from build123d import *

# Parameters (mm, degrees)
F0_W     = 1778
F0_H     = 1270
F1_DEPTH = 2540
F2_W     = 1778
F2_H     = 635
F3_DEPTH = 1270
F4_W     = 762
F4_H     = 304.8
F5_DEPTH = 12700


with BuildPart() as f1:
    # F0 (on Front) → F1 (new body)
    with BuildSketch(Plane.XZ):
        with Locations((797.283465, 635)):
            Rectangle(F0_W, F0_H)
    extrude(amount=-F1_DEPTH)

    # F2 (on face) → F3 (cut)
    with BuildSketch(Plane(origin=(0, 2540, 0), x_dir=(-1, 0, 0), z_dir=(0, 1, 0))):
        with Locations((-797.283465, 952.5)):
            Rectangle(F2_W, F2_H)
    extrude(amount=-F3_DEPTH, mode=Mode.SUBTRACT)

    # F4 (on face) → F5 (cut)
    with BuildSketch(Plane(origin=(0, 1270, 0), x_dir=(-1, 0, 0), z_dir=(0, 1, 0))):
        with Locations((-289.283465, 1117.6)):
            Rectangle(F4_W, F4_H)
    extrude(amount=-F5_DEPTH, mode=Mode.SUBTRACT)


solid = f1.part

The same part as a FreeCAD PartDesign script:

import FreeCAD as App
import Part
import Sketcher

V = App.Vector
Q = App.Units.Quantity

doc = App.newDocument("Part")
body = doc.addObject("PartDesign::Body", "Body")

sketch1 = body.newObject("Sketcher::SketchObject", "Sketch")
sketch1.AttachmentSupport = (doc.getObject("XZ_Plane"), [""])
sketch1.MapMode = "FlatFace"
sketch1.addGeometry(Part.LineSegment(V(-92, 1270, 0), V(-92, 0, 0)), False)
sketch1.addGeometry(Part.LineSegment(V(-92, 0, 0), V(1686, 0, 0)), False)
sketch1.addGeometry(Part.LineSegment(V(1686, 0, 0), V(1686, 1270, 0)), False)
sketch1.addGeometry(Part.LineSegment(V(1686, 1270, 0), V(-92, 1270, 0)), False)
sketch1.addConstraint(Sketcher.Constraint("Coincident", 0, 2, 1, 1))
sketch1.addConstraint(Sketcher.Constraint("Coincident", 1, 2, 2, 1))
sketch1.addConstraint(Sketcher.Constraint("Coincident", 2, 2, 3, 1))
sketch1.addConstraint(Sketcher.Constraint("Coincident", 3, 2, 0, 1))
sketch1.addConstraint(Sketcher.Constraint("Vertical", 0))
sketch1.addConstraint(Sketcher.Constraint("Horizontal", 1))
sketch1.addConstraint(Sketcher.Constraint("Vertical", 2))
sketch1.addConstraint(Sketcher.Constraint("Horizontal", 3))
sketch1.addConstraint(Sketcher.Constraint("PointOnObject", 0, 2, -1))
sketch1.addConstraint(Sketcher.Constraint("DistanceX", 1, 1, 1, 2, Q("70 in")))
sketch1.addConstraint(Sketcher.Constraint("DistanceY", 0, 2, 0, 1, Q("50 in")))
sketch1.addConstraint(Sketcher.Constraint("DistanceX", 0, 2, -1, 1, 91.716535))
pad1 = body.newObject("PartDesign::Pad", "Pad")
pad1.Profile = sketch1
pad1.Length = Q("100 in")
pad1.Reversed = True

sketch2 = body.newObject("Sketcher::SketchObject", "Sketch001")
sketch2.AttachmentSupport = (doc.getObject("XZ_Plane"), [""])
sketch2.MapMode = "FlatFace"
sketch2.AttachmentOffset = App.Placement(V(0, 0, -100 * 25.4), App.Rotation())
sketch2.addGeometry(Part.LineSegment(V(1686, 1270, 0), V(1686, 635, 0)), False)
sketch2.addGeometry(Part.LineSegment(V(1686, 635, 0), V(-92, 635, 0)), False)
sketch2.addGeometry(Part.LineSegment(V(-92, 635, 0), V(-92, 1270, 0)), False)
sketch2.addGeometry(Part.LineSegment(V(-92, 1270, 0), V(1686, 1270, 0)), False)
sketch2.addConstraint(Sketcher.Constraint("Coincident", 0, 2, 1, 1))
sketch2.addConstraint(Sketcher.Constraint("Coincident", 1, 2, 2, 1))
sketch2.addConstraint(Sketcher.Constraint("Coincident", 2, 2, 3, 1))
sketch2.addConstraint(Sketcher.Constraint("Coincident", 3, 2, 0, 1))
sketch2.addConstraint(Sketcher.Constraint("Vertical", 0))
sketch2.addConstraint(Sketcher.Constraint("Horizontal", 1))
sketch2.addConstraint(Sketcher.Constraint("Vertical", 2))
sketch2.addConstraint(Sketcher.Constraint("Horizontal", 3))
sketch2.addConstraint(Sketcher.Constraint("DistanceX", 1, 2, 1, 1, Q("70 in")))
sketch2.addConstraint(Sketcher.Constraint("DistanceY", 0, 2, 0, 1, Q("25 in")))
sketch2.addConstraint(Sketcher.Constraint("DistanceY", -1, 1, 0, 2, Q("25 in")))
sketch2.addConstraint(Sketcher.Constraint("DistanceX", -1, 1, 0, 2, 1686.283465))
pocket1 = body.newObject("PartDesign::Pocket", "Pocket")
pocket1.Profile = sketch2
pocket1.Length = Q("50 in")
pocket1.Reversed = True

sketch3 = body.newObject("Sketcher::SketchObject", "Sketch002")
sketch3.AttachmentSupport = (doc.getObject("XZ_Plane"), [""])
sketch3.MapMode = "FlatFace"
sketch3.AttachmentOffset = App.Placement(V(0, 0, -50 * 25.4), App.Rotation())
sketch3.addGeometry(Part.LineSegment(V(670, 1270, 0), V(670, 965, 0)), False)
sketch3.addGeometry(Part.LineSegment(V(670, 965, 0), V(-92, 965, 0)), False)
sketch3.addGeometry(Part.LineSegment(V(-92, 965, 0), V(-92, 1270, 0)), False)
sketch3.addGeometry(Part.LineSegment(V(-92, 1270, 0), V(670, 1270, 0)), False)
sketch3.addConstraint(Sketcher.Constraint("Coincident", 0, 2, 1, 1))
sketch3.addConstraint(Sketcher.Constraint("Coincident", 1, 2, 2, 1))
sketch3.addConstraint(Sketcher.Constraint("Coincident", 2, 2, 3, 1))
sketch3.addConstraint(Sketcher.Constraint("Coincident", 3, 2, 0, 1))
sketch3.addConstraint(Sketcher.Constraint("Vertical", 0))
sketch3.addConstraint(Sketcher.Constraint("Horizontal", 1))
sketch3.addConstraint(Sketcher.Constraint("Vertical", 2))
sketch3.addConstraint(Sketcher.Constraint("Horizontal", 3))
sketch3.addConstraint(Sketcher.Constraint("DistanceX", 1, 2, 1, 1, Q("30 in")))
sketch3.addConstraint(Sketcher.Constraint("DistanceY", 0, 2, 0, 1, Q("12 in")))
sketch3.addConstraint(Sketcher.Constraint("DistanceY", -1, 1, 0, 2, Q("38 in")))
sketch3.addConstraint(Sketcher.Constraint("DistanceX", -1, 1, 0, 2, 670.283465))
pocket2 = body.newObject("PartDesign::Pocket", "Pocket001")
pocket2.Profile = sketch3
pocket2.Length = Q("500 in")
pocket2.Reversed = True

doc.recompute()
